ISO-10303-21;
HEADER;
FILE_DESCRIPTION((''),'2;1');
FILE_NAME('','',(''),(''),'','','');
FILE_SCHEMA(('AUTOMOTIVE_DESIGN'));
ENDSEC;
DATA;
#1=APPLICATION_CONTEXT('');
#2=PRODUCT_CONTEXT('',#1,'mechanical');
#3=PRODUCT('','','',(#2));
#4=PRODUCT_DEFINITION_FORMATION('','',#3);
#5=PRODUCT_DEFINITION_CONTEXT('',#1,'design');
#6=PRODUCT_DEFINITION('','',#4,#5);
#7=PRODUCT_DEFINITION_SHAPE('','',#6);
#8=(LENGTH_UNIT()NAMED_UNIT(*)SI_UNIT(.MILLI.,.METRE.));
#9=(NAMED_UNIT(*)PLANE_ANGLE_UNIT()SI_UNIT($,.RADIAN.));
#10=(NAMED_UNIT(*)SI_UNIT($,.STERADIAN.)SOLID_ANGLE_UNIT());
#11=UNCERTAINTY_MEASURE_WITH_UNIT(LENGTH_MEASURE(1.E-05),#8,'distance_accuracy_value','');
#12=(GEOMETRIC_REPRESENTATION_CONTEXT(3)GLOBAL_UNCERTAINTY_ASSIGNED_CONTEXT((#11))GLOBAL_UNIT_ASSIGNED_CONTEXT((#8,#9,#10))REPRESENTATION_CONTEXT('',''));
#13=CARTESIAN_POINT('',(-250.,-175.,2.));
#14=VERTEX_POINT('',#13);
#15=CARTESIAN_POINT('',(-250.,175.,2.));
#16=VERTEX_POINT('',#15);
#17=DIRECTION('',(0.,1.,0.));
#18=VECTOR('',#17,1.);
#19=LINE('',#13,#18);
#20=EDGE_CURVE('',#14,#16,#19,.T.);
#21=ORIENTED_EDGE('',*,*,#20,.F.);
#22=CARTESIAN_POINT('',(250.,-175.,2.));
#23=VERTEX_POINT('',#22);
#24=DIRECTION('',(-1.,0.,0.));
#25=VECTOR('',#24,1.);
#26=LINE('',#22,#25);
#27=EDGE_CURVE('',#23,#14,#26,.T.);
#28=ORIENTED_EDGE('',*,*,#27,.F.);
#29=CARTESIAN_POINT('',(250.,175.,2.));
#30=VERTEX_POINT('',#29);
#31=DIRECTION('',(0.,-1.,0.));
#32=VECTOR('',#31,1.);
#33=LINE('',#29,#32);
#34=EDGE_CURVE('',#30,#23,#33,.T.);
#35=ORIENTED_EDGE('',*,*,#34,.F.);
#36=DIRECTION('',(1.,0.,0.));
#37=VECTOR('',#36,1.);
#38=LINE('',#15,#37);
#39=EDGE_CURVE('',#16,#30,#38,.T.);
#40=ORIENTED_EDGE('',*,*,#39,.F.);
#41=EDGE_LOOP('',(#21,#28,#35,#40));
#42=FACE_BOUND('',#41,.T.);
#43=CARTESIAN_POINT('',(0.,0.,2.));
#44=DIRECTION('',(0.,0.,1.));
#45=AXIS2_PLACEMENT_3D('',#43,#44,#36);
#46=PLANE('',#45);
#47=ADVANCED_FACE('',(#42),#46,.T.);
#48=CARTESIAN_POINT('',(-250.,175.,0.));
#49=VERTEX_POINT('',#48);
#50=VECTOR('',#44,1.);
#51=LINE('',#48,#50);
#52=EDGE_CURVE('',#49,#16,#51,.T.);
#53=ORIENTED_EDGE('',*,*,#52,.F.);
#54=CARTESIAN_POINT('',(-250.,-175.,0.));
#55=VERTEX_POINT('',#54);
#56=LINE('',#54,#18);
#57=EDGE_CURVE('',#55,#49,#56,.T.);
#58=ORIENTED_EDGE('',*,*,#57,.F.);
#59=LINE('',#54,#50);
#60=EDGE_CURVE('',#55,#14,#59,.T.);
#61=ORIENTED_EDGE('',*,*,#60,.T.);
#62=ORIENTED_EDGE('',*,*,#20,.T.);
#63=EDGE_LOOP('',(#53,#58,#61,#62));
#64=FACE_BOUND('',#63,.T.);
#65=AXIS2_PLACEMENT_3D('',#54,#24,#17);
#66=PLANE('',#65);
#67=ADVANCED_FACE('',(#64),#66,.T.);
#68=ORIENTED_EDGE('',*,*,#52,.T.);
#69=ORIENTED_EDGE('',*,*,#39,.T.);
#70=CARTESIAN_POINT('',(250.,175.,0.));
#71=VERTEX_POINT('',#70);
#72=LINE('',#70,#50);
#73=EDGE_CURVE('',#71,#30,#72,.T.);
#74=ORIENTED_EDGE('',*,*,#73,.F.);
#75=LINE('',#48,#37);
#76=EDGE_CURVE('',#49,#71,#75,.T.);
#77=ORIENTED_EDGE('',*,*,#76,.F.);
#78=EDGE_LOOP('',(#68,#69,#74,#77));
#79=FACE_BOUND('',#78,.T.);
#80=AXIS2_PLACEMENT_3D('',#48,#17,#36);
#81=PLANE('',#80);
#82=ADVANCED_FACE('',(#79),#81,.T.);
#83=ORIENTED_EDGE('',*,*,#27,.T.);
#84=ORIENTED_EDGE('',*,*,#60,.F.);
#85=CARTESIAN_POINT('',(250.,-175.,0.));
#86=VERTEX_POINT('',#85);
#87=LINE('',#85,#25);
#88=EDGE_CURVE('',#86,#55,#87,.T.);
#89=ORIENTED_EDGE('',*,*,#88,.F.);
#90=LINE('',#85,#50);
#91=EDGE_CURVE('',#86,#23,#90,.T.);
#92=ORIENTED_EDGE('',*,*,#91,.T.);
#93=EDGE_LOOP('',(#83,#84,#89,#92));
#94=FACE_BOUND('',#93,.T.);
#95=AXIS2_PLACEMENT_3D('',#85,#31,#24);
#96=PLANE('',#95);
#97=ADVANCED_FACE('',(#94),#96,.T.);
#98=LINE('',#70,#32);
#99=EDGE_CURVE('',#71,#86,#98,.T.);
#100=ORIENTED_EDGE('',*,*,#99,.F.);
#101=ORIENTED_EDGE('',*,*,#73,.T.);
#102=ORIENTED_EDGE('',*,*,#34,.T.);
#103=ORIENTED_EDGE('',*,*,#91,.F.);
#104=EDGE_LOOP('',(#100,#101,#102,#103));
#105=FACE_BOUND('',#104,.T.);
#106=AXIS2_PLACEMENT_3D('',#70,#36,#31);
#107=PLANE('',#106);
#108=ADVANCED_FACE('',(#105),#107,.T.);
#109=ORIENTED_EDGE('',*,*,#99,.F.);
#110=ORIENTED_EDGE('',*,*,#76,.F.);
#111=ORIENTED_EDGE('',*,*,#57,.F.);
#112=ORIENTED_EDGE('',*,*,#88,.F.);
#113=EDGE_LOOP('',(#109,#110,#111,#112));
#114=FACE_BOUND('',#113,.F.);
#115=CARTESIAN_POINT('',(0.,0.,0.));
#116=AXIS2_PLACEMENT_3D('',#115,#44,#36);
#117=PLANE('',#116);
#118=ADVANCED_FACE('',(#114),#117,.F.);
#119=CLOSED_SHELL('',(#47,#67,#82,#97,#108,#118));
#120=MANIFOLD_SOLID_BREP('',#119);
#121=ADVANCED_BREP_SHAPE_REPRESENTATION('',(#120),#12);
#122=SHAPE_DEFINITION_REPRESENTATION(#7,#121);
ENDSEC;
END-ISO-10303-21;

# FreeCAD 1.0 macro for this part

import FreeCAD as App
import Part
import Sketcher

V = App.Vector
Q = App.Units.Quantity


def add_polygon(sketch, points):
    """Adds a closed chain of lines whose ends are joined by coincident constraints."""
    first, n = sketch.GeometryCount, len(points)
    for a, b in zip(points, points[1:] + points[:1]):
        sketch.addGeometry(Part.LineSegment(App.Vector(*a, 0), App.Vector(*b, 0)), False)
    for i in range(n):
        sketch.addConstraint(Sketcher.Constraint("Coincident", first + i, 2, first + (i + 1) % n, 1))

doc = App.newDocument("Part")
params = doc.addObject("Spreadsheet::Sheet", "Params")
for row, (alias, value) in enumerate([
    ("sketch1_width", "500 mm"),
    ("sketch1_height", "350 mm"),
    ("pad1_length", "2 mm"),
], start=1):
    params.set(f"A{row}", alias)
    params.set(f"B{row}", "=" + value)
    params.setAlias(f"B{row}", alias)

body = doc.addObject("PartDesign::Body", "Body")

# Sketch on XY plane
sketch1 = body.newObject("Sketcher::SketchObject", "Sketch")
sketch1.AttachmentSupport = (doc.getObject("XY_Plane"), [""])
sketch1.MapMode = "FlatFace"
add_polygon(sketch1, [(250, 175), (-250, 175), (-250, -175), (250, -175)])  # lines 0-3
sketch1.addConstraint(Sketcher.Constraint("Horizontal", 0))
sketch1.addConstraint(Sketcher.Constraint("Vertical", 1))
sketch1.addConstraint(Sketcher.Constraint("Horizontal", 2))
sketch1.addConstraint(Sketcher.Constraint("Vertical", 3))
sketch1.addConstraint(Sketcher.Constraint("Symmetric", 0, 2, 2, 2, -1, 1))
sketch1.addConstraint(Sketcher.Constraint("DistanceX", 0, 2, 0, 1, Q("500 mm")))
sketch1.addConstraint(Sketcher.Constraint("DistanceY", 1, 2, 1, 1, Q("350 mm")))
sketch1.setExpression("Constraints[9]", "Params.sketch1_width")
sketch1.setExpression("Constraints[10]", "Params.sketch1_height")
pad1 = body.newObject("PartDesign::Pad", "Pad")
pad1.Profile = sketch1
pad1.setExpression("Length", "Params.pad1_length")

doc.recompute()
